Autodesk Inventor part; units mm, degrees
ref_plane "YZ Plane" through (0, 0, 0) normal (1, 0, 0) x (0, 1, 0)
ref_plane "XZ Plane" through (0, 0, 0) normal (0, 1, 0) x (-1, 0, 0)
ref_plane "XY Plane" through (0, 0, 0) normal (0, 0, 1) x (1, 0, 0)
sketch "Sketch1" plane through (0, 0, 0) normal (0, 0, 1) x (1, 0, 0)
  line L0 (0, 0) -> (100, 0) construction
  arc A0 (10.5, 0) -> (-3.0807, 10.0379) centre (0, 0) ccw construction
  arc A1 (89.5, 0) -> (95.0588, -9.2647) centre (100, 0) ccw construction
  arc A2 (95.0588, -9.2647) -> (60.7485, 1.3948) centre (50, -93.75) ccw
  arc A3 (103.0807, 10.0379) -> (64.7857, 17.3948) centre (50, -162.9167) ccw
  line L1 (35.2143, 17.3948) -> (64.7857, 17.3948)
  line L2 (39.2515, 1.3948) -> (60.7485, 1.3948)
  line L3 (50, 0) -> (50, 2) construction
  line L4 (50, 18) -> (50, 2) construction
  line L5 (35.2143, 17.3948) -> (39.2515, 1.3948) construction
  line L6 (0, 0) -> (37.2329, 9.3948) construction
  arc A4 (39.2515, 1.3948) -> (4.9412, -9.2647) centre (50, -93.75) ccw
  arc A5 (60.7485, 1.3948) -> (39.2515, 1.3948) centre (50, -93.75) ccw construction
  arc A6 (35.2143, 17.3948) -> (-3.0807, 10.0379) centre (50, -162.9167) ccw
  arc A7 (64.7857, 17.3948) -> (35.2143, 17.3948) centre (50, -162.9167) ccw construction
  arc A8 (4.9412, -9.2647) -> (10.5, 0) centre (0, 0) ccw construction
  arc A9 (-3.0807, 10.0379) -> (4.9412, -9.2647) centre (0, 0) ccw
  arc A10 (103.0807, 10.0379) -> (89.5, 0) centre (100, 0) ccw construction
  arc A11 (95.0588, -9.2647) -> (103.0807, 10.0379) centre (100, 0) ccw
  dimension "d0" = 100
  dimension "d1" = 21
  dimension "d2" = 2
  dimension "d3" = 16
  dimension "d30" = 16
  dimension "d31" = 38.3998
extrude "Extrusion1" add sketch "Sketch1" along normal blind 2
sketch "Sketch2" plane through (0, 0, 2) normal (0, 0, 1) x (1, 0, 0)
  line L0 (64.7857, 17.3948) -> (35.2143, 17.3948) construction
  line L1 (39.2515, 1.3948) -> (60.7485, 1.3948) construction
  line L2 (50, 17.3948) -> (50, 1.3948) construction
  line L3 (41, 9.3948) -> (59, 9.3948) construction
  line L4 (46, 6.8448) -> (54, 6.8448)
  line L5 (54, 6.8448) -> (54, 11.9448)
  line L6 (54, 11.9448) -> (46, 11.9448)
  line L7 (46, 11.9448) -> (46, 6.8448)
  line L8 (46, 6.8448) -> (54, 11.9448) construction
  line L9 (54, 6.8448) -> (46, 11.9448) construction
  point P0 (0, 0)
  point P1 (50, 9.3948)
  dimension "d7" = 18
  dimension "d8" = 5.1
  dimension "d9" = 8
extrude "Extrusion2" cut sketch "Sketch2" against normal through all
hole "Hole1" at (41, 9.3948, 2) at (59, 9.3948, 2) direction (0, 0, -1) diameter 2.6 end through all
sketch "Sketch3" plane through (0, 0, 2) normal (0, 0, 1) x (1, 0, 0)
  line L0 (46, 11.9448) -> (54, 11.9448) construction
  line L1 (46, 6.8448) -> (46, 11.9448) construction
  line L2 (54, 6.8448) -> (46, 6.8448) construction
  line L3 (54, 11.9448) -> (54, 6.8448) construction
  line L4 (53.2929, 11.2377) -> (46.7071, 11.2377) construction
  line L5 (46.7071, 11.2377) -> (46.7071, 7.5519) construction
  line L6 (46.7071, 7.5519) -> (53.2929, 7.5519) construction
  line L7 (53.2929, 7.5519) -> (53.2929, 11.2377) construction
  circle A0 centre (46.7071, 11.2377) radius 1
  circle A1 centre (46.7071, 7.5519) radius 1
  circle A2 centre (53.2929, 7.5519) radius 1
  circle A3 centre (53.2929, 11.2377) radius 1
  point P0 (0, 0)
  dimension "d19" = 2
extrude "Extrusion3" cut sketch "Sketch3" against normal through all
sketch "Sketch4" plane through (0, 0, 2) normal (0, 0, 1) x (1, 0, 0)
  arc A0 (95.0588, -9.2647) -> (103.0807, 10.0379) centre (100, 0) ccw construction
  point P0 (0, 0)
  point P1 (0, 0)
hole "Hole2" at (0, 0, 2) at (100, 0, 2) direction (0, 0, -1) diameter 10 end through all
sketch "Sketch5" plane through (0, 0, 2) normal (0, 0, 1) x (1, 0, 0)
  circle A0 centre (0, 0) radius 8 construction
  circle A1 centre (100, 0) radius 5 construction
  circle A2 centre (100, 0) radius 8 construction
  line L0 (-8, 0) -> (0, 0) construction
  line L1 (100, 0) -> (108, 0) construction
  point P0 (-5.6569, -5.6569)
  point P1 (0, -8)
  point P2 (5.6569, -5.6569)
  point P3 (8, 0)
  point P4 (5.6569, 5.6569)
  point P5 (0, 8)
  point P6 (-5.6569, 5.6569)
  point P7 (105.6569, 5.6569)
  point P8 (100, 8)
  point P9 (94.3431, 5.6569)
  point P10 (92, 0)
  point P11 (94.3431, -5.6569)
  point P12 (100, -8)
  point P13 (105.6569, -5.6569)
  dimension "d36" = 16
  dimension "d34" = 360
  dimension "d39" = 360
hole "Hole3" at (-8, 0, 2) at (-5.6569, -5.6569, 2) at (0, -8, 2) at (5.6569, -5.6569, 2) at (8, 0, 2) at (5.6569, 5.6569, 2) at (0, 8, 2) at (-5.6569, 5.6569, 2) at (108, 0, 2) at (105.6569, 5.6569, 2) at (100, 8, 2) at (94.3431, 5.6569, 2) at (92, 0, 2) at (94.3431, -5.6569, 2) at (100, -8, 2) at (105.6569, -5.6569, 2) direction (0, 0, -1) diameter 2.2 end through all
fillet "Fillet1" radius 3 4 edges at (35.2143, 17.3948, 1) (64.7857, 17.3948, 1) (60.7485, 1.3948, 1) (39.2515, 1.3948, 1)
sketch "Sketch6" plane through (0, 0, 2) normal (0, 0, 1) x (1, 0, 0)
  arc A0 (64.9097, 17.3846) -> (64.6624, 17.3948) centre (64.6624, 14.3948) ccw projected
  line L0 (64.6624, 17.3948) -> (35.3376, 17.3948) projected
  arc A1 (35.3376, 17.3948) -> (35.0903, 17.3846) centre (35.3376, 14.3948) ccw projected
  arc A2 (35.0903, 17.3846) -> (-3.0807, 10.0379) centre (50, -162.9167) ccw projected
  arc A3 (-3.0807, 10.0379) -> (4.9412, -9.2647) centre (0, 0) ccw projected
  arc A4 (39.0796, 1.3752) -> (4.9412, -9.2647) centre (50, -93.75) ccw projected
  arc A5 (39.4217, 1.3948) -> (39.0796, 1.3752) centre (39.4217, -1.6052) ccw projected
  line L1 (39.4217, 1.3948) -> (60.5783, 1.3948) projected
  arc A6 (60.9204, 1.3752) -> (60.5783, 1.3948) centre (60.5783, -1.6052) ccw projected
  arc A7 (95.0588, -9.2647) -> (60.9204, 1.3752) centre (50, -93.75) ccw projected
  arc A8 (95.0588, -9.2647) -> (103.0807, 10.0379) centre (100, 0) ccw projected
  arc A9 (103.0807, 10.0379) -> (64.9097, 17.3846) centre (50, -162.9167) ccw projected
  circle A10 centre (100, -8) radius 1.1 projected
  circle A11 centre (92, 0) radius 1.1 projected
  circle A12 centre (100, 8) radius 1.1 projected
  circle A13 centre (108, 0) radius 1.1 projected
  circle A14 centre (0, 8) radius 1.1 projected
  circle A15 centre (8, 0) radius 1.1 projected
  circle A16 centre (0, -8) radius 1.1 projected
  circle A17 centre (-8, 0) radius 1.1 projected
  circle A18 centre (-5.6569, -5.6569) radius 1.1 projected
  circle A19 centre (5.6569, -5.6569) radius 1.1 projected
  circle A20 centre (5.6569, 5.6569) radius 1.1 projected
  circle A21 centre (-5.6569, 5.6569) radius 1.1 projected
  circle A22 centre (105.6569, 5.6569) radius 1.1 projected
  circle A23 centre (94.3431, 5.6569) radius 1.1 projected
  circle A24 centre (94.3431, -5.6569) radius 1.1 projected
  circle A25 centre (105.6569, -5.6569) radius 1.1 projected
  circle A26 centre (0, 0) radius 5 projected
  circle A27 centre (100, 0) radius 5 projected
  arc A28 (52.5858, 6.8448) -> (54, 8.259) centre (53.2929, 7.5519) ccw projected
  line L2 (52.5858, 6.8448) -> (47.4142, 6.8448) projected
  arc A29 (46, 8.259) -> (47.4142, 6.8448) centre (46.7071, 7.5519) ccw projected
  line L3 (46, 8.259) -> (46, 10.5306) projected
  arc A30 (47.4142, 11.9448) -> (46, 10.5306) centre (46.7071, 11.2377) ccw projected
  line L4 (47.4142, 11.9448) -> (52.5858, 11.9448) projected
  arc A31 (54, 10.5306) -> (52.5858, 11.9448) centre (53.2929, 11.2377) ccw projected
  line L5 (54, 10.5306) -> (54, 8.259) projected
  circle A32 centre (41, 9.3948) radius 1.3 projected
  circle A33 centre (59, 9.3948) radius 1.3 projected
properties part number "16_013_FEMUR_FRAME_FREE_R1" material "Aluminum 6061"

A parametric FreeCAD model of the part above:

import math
import FreeCAD as App
import Part
import Sketcher


def edges_at(feature, points):
    """Names of the edges that pass closest to the given points."""
    edges = feature.Shape.Edges
    near = lambda p: min(range(len(edges)), key=lambda i: edges[i].distToShape(Part.Vertex(*p))[0])
    return sorted({f"Edge{near(p) + 1}" for p in points})


def add_polygon(sketch, points):
    """Adds a closed chain of lines whose ends are joined by coincident constraints."""
    first, n = sketch.GeometryCount, len(points)
    for a, b in zip(points, points[1:] + points[:1]):
        sketch.addGeometry(Part.LineSegment(App.Vector(*a, 0), App.Vector(*b, 0)), False)
    for i in range(n):
        sketch.addConstraint(Sketcher.Constraint("Coincident", first + i, 2, first + (i + 1) % n, 1))

doc = App.newDocument("Part")
body = doc.addObject("PartDesign::Body", "Body")

# Sketch on XY plane
sketch1 = body.newObject("Sketcher::SketchObject", "Sketch")
sketch1.AttachmentSupport = (doc.getObject("XY_Plane"), [""])
sketch1.MapMode = "FlatFace"
sketch1.addGeometry(Part.ArcOfCircle(Part.Circle(App.Vector(50, -94, 0), App.Vector(0, 0, 1), 96), math.radians(62), math.radians(84)), False)
sketch1.addGeometry(Part.ArcOfCircle(Part.Circle(App.Vector(100, 0, 0), App.Vector(0, 0, 1), 11), math.radians(-118), math.radians(73)), False)
sketch1.addGeometry(Part.ArcOfCircle(Part.Circle(App.Vector(50, -163, 0), App.Vector(0, 0, 1), 181), math.radians(72.94), math.radians(85.31)), False)
sketch1.addGeometry(Part.LineSegment(App.Vector(65, 17, 0), App.Vector(35, 17, 0)), False)
sketch1.addGeometry(Part.ArcOfCircle(Part.Circle(App.Vector(50, -163, 0), App.Vector(0, 0, 1), 181), math.radians(94.69), math.radians(107.06)), False)
sketch1.addGeometry(Part.ArcOfCircle(Part.Circle(App.Vector(0, 0, 0), App.Vector(0, 0, 1), 11), math.radians(107), math.radians(298)), False)
sketch1.addGeometry(Part.ArcOfCircle(Part.Circle(App.Vector(50, -94, 0), App.Vector(0, 0, 1), 96), math.radians(96), math.radians(118)), False)
sketch1.addGeometry(Part.LineSegment(App.Vector(39, 1, 0), App.Vector(61, 1, 0)), False)
sketch1.addConstraint(Sketcher.Constraint("Tangent", 0, 1, 1, 1))
sketch1.addConstraint(Sketcher.Constraint("Tangent", 1, 2, 2, 1))
sketch1.addConstraint(Sketcher.Constraint("Coincident", 2, 2, 3, 1))
sketch1.addConstraint(Sketcher.Constraint("Coincident", 3, 2, 4, 1))
sketch1.addConstraint(Sketcher.Constraint("Tangent", 4, 2, 5, 1))
sketch1.addConstraint(Sketcher.Constraint("Tangent", 5, 2, 6, 2))
sketch1.addConstraint(Sketcher.Constraint("Coincident", 6, 1, 7, 1))
sketch1.addConstraint(Sketcher.Constraint("Coincident", 7, 2, 0, 2))
sketch1.addConstraint(Sketcher.Constraint("Horizontal", 3))
sketch1.addConstraint(Sketcher.Constraint("Horizontal", 7))
sketch1.addConstraint(Sketcher.Constraint("Coincident", 5, 3, -1, 1))
sketch1.addConstraint(Sketcher.Constraint("Coincident", 4, 3, 2, 3))
sketch1.addConstraint(Sketcher.Constraint("Coincident", 6, 3, 0, 3))
sketch1.addConstraint(Sketcher.Constraint("Equal", 2, 4))
sketch1.addConstraint(Sketcher.Constraint("Equal", 1, 5))
sketch1.addConstraint(Sketcher.Constraint("Equal", 0, 6))
sketch1.addConstraint(Sketcher.Constraint("PointOnObject", 1, 3, -1))
sketch1.addConstraint(Sketcher.Constraint("Radius", 1, 10.5))
sketch1.addConstraint(Sketcher.Constraint("DistanceX", -1, 1, 1, 3, 100.0))
sketch1.addConstraint(Sketcher.Constraint("DistanceY", 6, 1, 3, 2, 16.0))
sketch1.addConstraint(Sketcher.Constraint("Radius", 0, 95.75))
sketch1.addConstraint(Sketcher.Constraint("Radius", 2, 180.9167))
sketch1.addConstraint(Sketcher.Constraint("DistanceX", 7, 1, 7, 2, 21.497))
pad1 = body.newObject("PartDesign::Pad", "Pad")
pad1.Profile = sketch1
pad1.Length = 2

# Sketch on XY plane
sketch2 = body.newObject("Sketcher::SketchObject", "Sketch001")
sketch2.AttachmentSupport = (doc.getObject("XY_Plane"), [""])
sketch2.MapMode = "FlatFace"
sketch2.AttachmentOffset = App.Placement(App.Vector(0, 0, 2), App.Rotation())
add_polygon(sketch2, [(46, 12), (46, 7), (54, 7), (54, 12)])  # lines 0-3
sketch2.addConstraint(Sketcher.Constraint("Vertical", 0))
sketch2.addConstraint(Sketcher.Constraint("Horizontal", 1))
sketch2.addConstraint(Sketcher.Constraint("Vertical", 2))
sketch2.addConstraint(Sketcher.Constraint("Horizontal", 3))
sketch2.addConstraint(Sketcher.Constraint("DistanceX", 1, 1, 1, 2, 8.0))
sketch2.addConstraint(Sketcher.Constraint("DistanceY", 0, 2, 0, 1, 5.1))
sketch2.addConstraint(Sketcher.Constraint("DistanceX", -1, 1, 0, 2, 46.0))
sketch2.addConstraint(Sketcher.Constraint("DistanceY", -1, 1, 0, 2, 6.8448))
pocket1 = body.newObject("PartDesign::Pocket", "Pocket")
pocket1.Profile = sketch2
pocket1.Type = "ThroughAll"

# Sketch on XY plane
sketch3 = body.newObject("Sketcher::SketchObject", "Sketch002")
sketch3.AttachmentSupport = (doc.getObject("XY_Plane"), [""])
sketch3.MapMode = "FlatFace"
sketch3.AttachmentOffset = App.Placement(App.Vector(0, 0, 2), App.Rotation())
sketch3.addGeometry(Part.Circle(App.Vector(41, 9.4, 0), App.Vector(0, 0, 1), 1.3), False)
sketch3.addGeometry(Part.Circle(App.Vector(59, 9.4, 0), App.Vector(0, 0, 1), 1.3), False)
sketch3.addConstraint(Sketcher.Constraint("Equal", 0, 1))
sketch3.addConstraint(Sketcher.Constraint("Horizontal", 0, 3, 1, 3))
sketch3.addConstraint(Sketcher.Constraint("Diameter", 0, 2.6))
sketch3.addConstraint(Sketcher.Constraint("DistanceX", -1, 1, 0, 3, 41.0))
sketch3.addConstraint(Sketcher.Constraint("DistanceX", -1, 1, 1, 3, 59.0))
sketch3.addConstraint(Sketcher.Constraint("DistanceY", -1, 1, 0, 3, 9.3948))
doc.recompute()
hole = body.newObject("PartDesign::Hole", "Hole")
hole.Profile = sketch3
hole.ThreadType = "None"
hole.Diameter = 2.6
hole.DepthType = "ThroughAll"

# Sketch on XY plane
sketch4 = body.newObject("Sketcher::SketchObject", "Sketch003")
sketch4.AttachmentSupport = (doc.getObject("XY_Plane"), [""])
sketch4.MapMode = "FlatFace"
sketch4.AttachmentOffset = App.Placement(App.Vector(0, 0, 2), App.Rotation())
sketch4.addGeometry(Part.Circle(App.Vector(46.7, 11.2, 0), App.Vector(0, 0, 1), 1), False)
sketch4.addGeometry(Part.Circle(App.Vector(46.7, 7.6, 0), App.Vector(0, 0, 1), 1), False)
sketch4.addGeometry(Part.Circle(App.Vector(53.3, 7.6, 0), App.Vector(0, 0, 1), 1), False)
sketch4.addGeometry(Part.Circle(App.Vector(53.3, 11.2, 0), App.Vector(0, 0, 1), 1), False)
sketch4.addConstraint(Sketcher.Constraint("Equal", 0, 1))
sketch4.addConstraint(Sketcher.Constraint("Equal", 1, 2))
sketch4.addConstraint(Sketcher.Constraint("Equal", 2, 3))
sketch4.addConstraint(Sketcher.Constraint("Horizontal", 1, 3, 2, 3))
sketch4.addConstraint(Sketcher.Constraint("Horizontal", 0, 3, 3, 3))
sketch4.addConstraint(Sketcher.Constraint("Vertical", 0, 3, 1, 3))
sketch4.addConstraint(Sketcher.Constraint("Vertical", 2, 3, 3, 3))
sketch4.addConstraint(Sketcher.Constraint("Diameter", 0, 2.0))
sketch4.addConstraint(Sketcher.Constraint("DistanceX", -1, 1, 0, 3, 46.707))
sketch4.addConstraint(Sketcher.Constraint("DistanceY", -1, 1, 1, 3, 7.552))
sketch4.addConstraint(Sketcher.Constraint("DistanceX", -1, 1, 2, 3, 53.293))
sketch4.addConstraint(Sketcher.Constraint("DistanceY", -1, 1, 0, 3, 11.2377))
pocket2 = body.newObject("PartDesign::Pocket", "Pocket001")
pocket2.Profile = sketch4
pocket2.Type = "ThroughAll"

# Sketch on XY plane
sketch5 = body.newObject("Sketcher::SketchObject", "Sketch004")
sketch5.AttachmentSupport = (doc.getObject("XY_Plane"), [""])
sketch5.MapMode = "FlatFace"
sketch5.AttachmentOffset = App.Placement(App.Vector(0, 0, 2), App.Rotation())
sketch5.addGeometry(Part.Circle(App.Vector(0, 0, 0), App.Vector(0, 0, 1), 5), False)
sketch5.addGeometry(Part.Circle(App.Vector(100, 0, 0), App.Vector(0, 0, 1), 5), False)
sketch5.addConstraint(Sketcher.Constraint("Coincident", 0, 3, -1, 1))
sketch5.addConstraint(Sketcher.Constraint("Equal", 0, 1))
sketch5.addConstraint(Sketcher.Constraint("PointOnObject", 1, 3, -1))
sketch5.addConstraint(Sketcher.Constraint("Diameter", 0, 10.0))
sketch5.addConstraint(Sketcher.Constraint("DistanceX", -1, 1, 1, 3, 100.0))
doc.recompute()
hole2 = body.newObject("PartDesign::Hole", "Hole001")
hole2.Profile = sketch5
hole2.ThreadType = "None"
hole2.Diameter = 10
hole2.DepthType = "ThroughAll"

# Sketch on XY plane
sketch6 = body.newObject("Sketcher::SketchObject", "Sketch005")
sketch6.AttachmentSupport = (doc.getObject("XY_Plane"), [""])
sketch6.MapMode = "FlatFace"
sketch6.AttachmentOffset = App.Placement(App.Vector(0, 0, 2), App.Rotation())
sketch6.addGeometry(Part.Circle(App.Vector(-8, 0, 0), App.Vector(0, 0, 1), 1.1), False)
sketch6.addGeometry(Part.Circle(App.Vector(-5.7, -5.7, 0), App.Vector(0, 0, 1), 1.1), False)
sketch6.addGeometry(Part.Circle(App.Vector(0, -8, 0), App.Vector(0, 0, 1), 1.1), False)
sketch6.addGeometry(Part.Circle(App.Vector(5.7, -5.7, 0), App.Vector(0, 0, 1), 1.1), False)
sketch6.addGeometry(Part.Circle(App.Vector(8, 0, 0), App.Vector(0, 0, 1), 1.1), False)
sketch6.addGeometry(Part.Circle(App.Vector(5.7, 5.7, 0), App.Vector(0, 0, 1), 1.1), False)
sketch6.addGeometry(Part.Circle(App.Vector(0, 8, 0), App.Vector(0, 0, 1), 1.1), False)
sketch6.addGeometry(Part.Circle(App.Vector(-5.7, 5.7, 0), App.Vector(0, 0, 1), 1.1), False)
sketch6.addGeometry(Part.Circle(App.Vector(108, 0, 0), App.Vector(0, 0, 1), 1.1), False)
sketch6.addGeometry(Part.Circle(App.Vector(105.7, 5.7, 0), App.Vector(0, 0, 1), 1.1), False)
sketch6.addGeometry(Part.Circle(App.Vector(100, 8, 0), App.Vector(0, 0, 1), 1.1), False)
sketch6.addGeometry(Part.Circle(App.Vector(94.3, 5.7, 0), App.Vector(0, 0, 1), 1.1), False)
sketch6.addGeometry(Part.Circle(App.Vector(92, 0, 0), App.Vector(0, 0, 1), 1.1), False)
sketch6.addGeometry(Part.Circle(App.Vector(94.3, -5.7, 0), App.Vector(0, 0, 1), 1.1), False)
sketch6.addGeometry(Part.Circle(App.Vector(100, -8, 0), App.Vector(0, 0, 1), 1.1), False)
sketch6.addGeometry(Part.Circle(App.Vector(105.7, -5.7, 0), App.Vector(0, 0, 1), 1.1), False)
sketch6.addConstraint(Sketcher.Constraint("Equal", 0, 1))
sketch6.addConstraint(Sketcher.Constraint("Equal", 1, 2))
sketch6.addConstraint(Sketcher.Constraint("Equal", 2, 3))
sketch6.addConstraint(Sketcher.Constraint("Equal", 3, 4))
sketch6.addConstraint(Sketcher.Constraint("Equal", 4, 5))
sketch6.addConstraint(Sketcher.Constraint("Equal", 5, 6))
sketch6.addConstraint(Sketcher.Constraint("Equal", 6, 7))
sketch6.addConstraint(Sketcher.Constraint("Equal", 7, 8))
sketch6.addConstraint(Sketcher.Constraint("Equal", 8, 9))
sketch6.addConstraint(Sketcher.Constraint("Equal", 9, 10))
sketch6.addConstraint(Sketcher.Constraint("Equal", 10, 11))
sketch6.addConstraint(Sketcher.Constraint("Equal", 11, 12))
sketch6.addConstraint(Sketcher.Constraint("Equal", 12, 13))
sketch6.addConstraint(Sketcher.Constraint("Equal", 13, 14))
sketch6.addConstraint(Sketcher.Constraint("Equal", 14, 15))
sketch6.addConstraint(Sketcher.Constraint("Symmetric", 0, 3, 4, 3, -1, 1))
sketch6.addConstraint(Sketcher.Constraint("Symmetric", 1, 3, 5, 3, -1, 1))
sketch6.addConstraint(Sketcher.Constraint("Symmetric", 2, 3, 6, 3, -1, 1))
sketch6.addConstraint(Sketcher.Constraint("Symmetric", 3, 3, 7, 3, -1, 1))
sketch6.addConstraint(Sketcher.Constraint("Symmetric", 1, 3, 3, 3, -2))
sketch6.addConstraint(Sketcher.Constraint("Symmetric", 11, 3, 13, 3, -1))
sketch6.addConstraint(Sketcher.Constraint("Symmetric", 10, 3, 14, 3, -1))
sketch6.addConstraint(Sketcher.Constraint("Symmetric", 9, 3, 15, 3, -1))
sketch6.addConstraint(Sketcher.Constraint("PointOnObject", 0, 3, -1))
sketch6.addConstraint(Sketcher.Constraint("PointOnObject", 2, 3, -2))
sketch6.addConstraint(Sketcher.Constraint("PointOnObject", 8, 3, -1))
sketch6.addConstraint(Sketcher.Constraint("PointOnObject", 12, 3, -1))
sketch6.addConstraint(Sketcher.Constraint("Horizontal", 7, 3, 9, 3))
sketch6.addConstraint(Sketcher.Constraint("Horizontal", 6, 3, 10, 3))
sketch6.addConstraint(Sketcher.Constraint("Horizontal", 9, 3, 11, 3))
sketch6.addConstraint(Sketcher.Constraint("Diameter", 0, 2.2))
sketch6.addConstraint(Sketcher.Constraint("DistanceX", 0, 3, -1, 1, 8.0))
sketch6.addConstraint(Sketcher.Constraint("DistanceY", 2, 3, -1, 1, 8.0))
sketch6.addConstraint(Sketcher.Constraint("DistanceX", -1, 1, 8, 3, 108.0))
sketch6.addConstraint(Sketcher.Constraint("DistanceX", -1, 1, 10, 3, 100.0))
sketch6.addConstraint(Sketcher.Constraint("DistanceX", -1, 1, 12, 3, 92.0))
sketch6.addConstraint(Sketcher.Constraint("DistanceX", 5, 3, 9, 3, 100.0))
sketch6.addConstraint(Sketcher.Constraint("DistanceX", 1, 3, -1, 1, 5.657))
sketch6.addConstraint(Sketcher.Constraint("DistanceY", 1, 3, -1, 1, 5.657))
sketch6.addConstraint(Sketcher.Constraint("DistanceX", -1, 1, 11, 3, 94.343))
doc.recompute()
hole3 = body.newObject("PartDesign::Hole", "Hole002")
hole3.Profile = sketch6
hole3.ThreadType = "None"
hole3.Diameter = 2.2
hole3.DepthType = "ThroughAll"
doc.recompute()

fillet = body.newObject("PartDesign::Fillet", "Fillet")
fillet.Base = (hole3, edges_at(hole3, [
    (35.214, 17.395, 1),
    (64.786, 17.395, 1),
    (60.748, 1.395, 1),
    (39.252, 1.395, 1),
]))
fillet.Radius = 3

doc.recompute()
